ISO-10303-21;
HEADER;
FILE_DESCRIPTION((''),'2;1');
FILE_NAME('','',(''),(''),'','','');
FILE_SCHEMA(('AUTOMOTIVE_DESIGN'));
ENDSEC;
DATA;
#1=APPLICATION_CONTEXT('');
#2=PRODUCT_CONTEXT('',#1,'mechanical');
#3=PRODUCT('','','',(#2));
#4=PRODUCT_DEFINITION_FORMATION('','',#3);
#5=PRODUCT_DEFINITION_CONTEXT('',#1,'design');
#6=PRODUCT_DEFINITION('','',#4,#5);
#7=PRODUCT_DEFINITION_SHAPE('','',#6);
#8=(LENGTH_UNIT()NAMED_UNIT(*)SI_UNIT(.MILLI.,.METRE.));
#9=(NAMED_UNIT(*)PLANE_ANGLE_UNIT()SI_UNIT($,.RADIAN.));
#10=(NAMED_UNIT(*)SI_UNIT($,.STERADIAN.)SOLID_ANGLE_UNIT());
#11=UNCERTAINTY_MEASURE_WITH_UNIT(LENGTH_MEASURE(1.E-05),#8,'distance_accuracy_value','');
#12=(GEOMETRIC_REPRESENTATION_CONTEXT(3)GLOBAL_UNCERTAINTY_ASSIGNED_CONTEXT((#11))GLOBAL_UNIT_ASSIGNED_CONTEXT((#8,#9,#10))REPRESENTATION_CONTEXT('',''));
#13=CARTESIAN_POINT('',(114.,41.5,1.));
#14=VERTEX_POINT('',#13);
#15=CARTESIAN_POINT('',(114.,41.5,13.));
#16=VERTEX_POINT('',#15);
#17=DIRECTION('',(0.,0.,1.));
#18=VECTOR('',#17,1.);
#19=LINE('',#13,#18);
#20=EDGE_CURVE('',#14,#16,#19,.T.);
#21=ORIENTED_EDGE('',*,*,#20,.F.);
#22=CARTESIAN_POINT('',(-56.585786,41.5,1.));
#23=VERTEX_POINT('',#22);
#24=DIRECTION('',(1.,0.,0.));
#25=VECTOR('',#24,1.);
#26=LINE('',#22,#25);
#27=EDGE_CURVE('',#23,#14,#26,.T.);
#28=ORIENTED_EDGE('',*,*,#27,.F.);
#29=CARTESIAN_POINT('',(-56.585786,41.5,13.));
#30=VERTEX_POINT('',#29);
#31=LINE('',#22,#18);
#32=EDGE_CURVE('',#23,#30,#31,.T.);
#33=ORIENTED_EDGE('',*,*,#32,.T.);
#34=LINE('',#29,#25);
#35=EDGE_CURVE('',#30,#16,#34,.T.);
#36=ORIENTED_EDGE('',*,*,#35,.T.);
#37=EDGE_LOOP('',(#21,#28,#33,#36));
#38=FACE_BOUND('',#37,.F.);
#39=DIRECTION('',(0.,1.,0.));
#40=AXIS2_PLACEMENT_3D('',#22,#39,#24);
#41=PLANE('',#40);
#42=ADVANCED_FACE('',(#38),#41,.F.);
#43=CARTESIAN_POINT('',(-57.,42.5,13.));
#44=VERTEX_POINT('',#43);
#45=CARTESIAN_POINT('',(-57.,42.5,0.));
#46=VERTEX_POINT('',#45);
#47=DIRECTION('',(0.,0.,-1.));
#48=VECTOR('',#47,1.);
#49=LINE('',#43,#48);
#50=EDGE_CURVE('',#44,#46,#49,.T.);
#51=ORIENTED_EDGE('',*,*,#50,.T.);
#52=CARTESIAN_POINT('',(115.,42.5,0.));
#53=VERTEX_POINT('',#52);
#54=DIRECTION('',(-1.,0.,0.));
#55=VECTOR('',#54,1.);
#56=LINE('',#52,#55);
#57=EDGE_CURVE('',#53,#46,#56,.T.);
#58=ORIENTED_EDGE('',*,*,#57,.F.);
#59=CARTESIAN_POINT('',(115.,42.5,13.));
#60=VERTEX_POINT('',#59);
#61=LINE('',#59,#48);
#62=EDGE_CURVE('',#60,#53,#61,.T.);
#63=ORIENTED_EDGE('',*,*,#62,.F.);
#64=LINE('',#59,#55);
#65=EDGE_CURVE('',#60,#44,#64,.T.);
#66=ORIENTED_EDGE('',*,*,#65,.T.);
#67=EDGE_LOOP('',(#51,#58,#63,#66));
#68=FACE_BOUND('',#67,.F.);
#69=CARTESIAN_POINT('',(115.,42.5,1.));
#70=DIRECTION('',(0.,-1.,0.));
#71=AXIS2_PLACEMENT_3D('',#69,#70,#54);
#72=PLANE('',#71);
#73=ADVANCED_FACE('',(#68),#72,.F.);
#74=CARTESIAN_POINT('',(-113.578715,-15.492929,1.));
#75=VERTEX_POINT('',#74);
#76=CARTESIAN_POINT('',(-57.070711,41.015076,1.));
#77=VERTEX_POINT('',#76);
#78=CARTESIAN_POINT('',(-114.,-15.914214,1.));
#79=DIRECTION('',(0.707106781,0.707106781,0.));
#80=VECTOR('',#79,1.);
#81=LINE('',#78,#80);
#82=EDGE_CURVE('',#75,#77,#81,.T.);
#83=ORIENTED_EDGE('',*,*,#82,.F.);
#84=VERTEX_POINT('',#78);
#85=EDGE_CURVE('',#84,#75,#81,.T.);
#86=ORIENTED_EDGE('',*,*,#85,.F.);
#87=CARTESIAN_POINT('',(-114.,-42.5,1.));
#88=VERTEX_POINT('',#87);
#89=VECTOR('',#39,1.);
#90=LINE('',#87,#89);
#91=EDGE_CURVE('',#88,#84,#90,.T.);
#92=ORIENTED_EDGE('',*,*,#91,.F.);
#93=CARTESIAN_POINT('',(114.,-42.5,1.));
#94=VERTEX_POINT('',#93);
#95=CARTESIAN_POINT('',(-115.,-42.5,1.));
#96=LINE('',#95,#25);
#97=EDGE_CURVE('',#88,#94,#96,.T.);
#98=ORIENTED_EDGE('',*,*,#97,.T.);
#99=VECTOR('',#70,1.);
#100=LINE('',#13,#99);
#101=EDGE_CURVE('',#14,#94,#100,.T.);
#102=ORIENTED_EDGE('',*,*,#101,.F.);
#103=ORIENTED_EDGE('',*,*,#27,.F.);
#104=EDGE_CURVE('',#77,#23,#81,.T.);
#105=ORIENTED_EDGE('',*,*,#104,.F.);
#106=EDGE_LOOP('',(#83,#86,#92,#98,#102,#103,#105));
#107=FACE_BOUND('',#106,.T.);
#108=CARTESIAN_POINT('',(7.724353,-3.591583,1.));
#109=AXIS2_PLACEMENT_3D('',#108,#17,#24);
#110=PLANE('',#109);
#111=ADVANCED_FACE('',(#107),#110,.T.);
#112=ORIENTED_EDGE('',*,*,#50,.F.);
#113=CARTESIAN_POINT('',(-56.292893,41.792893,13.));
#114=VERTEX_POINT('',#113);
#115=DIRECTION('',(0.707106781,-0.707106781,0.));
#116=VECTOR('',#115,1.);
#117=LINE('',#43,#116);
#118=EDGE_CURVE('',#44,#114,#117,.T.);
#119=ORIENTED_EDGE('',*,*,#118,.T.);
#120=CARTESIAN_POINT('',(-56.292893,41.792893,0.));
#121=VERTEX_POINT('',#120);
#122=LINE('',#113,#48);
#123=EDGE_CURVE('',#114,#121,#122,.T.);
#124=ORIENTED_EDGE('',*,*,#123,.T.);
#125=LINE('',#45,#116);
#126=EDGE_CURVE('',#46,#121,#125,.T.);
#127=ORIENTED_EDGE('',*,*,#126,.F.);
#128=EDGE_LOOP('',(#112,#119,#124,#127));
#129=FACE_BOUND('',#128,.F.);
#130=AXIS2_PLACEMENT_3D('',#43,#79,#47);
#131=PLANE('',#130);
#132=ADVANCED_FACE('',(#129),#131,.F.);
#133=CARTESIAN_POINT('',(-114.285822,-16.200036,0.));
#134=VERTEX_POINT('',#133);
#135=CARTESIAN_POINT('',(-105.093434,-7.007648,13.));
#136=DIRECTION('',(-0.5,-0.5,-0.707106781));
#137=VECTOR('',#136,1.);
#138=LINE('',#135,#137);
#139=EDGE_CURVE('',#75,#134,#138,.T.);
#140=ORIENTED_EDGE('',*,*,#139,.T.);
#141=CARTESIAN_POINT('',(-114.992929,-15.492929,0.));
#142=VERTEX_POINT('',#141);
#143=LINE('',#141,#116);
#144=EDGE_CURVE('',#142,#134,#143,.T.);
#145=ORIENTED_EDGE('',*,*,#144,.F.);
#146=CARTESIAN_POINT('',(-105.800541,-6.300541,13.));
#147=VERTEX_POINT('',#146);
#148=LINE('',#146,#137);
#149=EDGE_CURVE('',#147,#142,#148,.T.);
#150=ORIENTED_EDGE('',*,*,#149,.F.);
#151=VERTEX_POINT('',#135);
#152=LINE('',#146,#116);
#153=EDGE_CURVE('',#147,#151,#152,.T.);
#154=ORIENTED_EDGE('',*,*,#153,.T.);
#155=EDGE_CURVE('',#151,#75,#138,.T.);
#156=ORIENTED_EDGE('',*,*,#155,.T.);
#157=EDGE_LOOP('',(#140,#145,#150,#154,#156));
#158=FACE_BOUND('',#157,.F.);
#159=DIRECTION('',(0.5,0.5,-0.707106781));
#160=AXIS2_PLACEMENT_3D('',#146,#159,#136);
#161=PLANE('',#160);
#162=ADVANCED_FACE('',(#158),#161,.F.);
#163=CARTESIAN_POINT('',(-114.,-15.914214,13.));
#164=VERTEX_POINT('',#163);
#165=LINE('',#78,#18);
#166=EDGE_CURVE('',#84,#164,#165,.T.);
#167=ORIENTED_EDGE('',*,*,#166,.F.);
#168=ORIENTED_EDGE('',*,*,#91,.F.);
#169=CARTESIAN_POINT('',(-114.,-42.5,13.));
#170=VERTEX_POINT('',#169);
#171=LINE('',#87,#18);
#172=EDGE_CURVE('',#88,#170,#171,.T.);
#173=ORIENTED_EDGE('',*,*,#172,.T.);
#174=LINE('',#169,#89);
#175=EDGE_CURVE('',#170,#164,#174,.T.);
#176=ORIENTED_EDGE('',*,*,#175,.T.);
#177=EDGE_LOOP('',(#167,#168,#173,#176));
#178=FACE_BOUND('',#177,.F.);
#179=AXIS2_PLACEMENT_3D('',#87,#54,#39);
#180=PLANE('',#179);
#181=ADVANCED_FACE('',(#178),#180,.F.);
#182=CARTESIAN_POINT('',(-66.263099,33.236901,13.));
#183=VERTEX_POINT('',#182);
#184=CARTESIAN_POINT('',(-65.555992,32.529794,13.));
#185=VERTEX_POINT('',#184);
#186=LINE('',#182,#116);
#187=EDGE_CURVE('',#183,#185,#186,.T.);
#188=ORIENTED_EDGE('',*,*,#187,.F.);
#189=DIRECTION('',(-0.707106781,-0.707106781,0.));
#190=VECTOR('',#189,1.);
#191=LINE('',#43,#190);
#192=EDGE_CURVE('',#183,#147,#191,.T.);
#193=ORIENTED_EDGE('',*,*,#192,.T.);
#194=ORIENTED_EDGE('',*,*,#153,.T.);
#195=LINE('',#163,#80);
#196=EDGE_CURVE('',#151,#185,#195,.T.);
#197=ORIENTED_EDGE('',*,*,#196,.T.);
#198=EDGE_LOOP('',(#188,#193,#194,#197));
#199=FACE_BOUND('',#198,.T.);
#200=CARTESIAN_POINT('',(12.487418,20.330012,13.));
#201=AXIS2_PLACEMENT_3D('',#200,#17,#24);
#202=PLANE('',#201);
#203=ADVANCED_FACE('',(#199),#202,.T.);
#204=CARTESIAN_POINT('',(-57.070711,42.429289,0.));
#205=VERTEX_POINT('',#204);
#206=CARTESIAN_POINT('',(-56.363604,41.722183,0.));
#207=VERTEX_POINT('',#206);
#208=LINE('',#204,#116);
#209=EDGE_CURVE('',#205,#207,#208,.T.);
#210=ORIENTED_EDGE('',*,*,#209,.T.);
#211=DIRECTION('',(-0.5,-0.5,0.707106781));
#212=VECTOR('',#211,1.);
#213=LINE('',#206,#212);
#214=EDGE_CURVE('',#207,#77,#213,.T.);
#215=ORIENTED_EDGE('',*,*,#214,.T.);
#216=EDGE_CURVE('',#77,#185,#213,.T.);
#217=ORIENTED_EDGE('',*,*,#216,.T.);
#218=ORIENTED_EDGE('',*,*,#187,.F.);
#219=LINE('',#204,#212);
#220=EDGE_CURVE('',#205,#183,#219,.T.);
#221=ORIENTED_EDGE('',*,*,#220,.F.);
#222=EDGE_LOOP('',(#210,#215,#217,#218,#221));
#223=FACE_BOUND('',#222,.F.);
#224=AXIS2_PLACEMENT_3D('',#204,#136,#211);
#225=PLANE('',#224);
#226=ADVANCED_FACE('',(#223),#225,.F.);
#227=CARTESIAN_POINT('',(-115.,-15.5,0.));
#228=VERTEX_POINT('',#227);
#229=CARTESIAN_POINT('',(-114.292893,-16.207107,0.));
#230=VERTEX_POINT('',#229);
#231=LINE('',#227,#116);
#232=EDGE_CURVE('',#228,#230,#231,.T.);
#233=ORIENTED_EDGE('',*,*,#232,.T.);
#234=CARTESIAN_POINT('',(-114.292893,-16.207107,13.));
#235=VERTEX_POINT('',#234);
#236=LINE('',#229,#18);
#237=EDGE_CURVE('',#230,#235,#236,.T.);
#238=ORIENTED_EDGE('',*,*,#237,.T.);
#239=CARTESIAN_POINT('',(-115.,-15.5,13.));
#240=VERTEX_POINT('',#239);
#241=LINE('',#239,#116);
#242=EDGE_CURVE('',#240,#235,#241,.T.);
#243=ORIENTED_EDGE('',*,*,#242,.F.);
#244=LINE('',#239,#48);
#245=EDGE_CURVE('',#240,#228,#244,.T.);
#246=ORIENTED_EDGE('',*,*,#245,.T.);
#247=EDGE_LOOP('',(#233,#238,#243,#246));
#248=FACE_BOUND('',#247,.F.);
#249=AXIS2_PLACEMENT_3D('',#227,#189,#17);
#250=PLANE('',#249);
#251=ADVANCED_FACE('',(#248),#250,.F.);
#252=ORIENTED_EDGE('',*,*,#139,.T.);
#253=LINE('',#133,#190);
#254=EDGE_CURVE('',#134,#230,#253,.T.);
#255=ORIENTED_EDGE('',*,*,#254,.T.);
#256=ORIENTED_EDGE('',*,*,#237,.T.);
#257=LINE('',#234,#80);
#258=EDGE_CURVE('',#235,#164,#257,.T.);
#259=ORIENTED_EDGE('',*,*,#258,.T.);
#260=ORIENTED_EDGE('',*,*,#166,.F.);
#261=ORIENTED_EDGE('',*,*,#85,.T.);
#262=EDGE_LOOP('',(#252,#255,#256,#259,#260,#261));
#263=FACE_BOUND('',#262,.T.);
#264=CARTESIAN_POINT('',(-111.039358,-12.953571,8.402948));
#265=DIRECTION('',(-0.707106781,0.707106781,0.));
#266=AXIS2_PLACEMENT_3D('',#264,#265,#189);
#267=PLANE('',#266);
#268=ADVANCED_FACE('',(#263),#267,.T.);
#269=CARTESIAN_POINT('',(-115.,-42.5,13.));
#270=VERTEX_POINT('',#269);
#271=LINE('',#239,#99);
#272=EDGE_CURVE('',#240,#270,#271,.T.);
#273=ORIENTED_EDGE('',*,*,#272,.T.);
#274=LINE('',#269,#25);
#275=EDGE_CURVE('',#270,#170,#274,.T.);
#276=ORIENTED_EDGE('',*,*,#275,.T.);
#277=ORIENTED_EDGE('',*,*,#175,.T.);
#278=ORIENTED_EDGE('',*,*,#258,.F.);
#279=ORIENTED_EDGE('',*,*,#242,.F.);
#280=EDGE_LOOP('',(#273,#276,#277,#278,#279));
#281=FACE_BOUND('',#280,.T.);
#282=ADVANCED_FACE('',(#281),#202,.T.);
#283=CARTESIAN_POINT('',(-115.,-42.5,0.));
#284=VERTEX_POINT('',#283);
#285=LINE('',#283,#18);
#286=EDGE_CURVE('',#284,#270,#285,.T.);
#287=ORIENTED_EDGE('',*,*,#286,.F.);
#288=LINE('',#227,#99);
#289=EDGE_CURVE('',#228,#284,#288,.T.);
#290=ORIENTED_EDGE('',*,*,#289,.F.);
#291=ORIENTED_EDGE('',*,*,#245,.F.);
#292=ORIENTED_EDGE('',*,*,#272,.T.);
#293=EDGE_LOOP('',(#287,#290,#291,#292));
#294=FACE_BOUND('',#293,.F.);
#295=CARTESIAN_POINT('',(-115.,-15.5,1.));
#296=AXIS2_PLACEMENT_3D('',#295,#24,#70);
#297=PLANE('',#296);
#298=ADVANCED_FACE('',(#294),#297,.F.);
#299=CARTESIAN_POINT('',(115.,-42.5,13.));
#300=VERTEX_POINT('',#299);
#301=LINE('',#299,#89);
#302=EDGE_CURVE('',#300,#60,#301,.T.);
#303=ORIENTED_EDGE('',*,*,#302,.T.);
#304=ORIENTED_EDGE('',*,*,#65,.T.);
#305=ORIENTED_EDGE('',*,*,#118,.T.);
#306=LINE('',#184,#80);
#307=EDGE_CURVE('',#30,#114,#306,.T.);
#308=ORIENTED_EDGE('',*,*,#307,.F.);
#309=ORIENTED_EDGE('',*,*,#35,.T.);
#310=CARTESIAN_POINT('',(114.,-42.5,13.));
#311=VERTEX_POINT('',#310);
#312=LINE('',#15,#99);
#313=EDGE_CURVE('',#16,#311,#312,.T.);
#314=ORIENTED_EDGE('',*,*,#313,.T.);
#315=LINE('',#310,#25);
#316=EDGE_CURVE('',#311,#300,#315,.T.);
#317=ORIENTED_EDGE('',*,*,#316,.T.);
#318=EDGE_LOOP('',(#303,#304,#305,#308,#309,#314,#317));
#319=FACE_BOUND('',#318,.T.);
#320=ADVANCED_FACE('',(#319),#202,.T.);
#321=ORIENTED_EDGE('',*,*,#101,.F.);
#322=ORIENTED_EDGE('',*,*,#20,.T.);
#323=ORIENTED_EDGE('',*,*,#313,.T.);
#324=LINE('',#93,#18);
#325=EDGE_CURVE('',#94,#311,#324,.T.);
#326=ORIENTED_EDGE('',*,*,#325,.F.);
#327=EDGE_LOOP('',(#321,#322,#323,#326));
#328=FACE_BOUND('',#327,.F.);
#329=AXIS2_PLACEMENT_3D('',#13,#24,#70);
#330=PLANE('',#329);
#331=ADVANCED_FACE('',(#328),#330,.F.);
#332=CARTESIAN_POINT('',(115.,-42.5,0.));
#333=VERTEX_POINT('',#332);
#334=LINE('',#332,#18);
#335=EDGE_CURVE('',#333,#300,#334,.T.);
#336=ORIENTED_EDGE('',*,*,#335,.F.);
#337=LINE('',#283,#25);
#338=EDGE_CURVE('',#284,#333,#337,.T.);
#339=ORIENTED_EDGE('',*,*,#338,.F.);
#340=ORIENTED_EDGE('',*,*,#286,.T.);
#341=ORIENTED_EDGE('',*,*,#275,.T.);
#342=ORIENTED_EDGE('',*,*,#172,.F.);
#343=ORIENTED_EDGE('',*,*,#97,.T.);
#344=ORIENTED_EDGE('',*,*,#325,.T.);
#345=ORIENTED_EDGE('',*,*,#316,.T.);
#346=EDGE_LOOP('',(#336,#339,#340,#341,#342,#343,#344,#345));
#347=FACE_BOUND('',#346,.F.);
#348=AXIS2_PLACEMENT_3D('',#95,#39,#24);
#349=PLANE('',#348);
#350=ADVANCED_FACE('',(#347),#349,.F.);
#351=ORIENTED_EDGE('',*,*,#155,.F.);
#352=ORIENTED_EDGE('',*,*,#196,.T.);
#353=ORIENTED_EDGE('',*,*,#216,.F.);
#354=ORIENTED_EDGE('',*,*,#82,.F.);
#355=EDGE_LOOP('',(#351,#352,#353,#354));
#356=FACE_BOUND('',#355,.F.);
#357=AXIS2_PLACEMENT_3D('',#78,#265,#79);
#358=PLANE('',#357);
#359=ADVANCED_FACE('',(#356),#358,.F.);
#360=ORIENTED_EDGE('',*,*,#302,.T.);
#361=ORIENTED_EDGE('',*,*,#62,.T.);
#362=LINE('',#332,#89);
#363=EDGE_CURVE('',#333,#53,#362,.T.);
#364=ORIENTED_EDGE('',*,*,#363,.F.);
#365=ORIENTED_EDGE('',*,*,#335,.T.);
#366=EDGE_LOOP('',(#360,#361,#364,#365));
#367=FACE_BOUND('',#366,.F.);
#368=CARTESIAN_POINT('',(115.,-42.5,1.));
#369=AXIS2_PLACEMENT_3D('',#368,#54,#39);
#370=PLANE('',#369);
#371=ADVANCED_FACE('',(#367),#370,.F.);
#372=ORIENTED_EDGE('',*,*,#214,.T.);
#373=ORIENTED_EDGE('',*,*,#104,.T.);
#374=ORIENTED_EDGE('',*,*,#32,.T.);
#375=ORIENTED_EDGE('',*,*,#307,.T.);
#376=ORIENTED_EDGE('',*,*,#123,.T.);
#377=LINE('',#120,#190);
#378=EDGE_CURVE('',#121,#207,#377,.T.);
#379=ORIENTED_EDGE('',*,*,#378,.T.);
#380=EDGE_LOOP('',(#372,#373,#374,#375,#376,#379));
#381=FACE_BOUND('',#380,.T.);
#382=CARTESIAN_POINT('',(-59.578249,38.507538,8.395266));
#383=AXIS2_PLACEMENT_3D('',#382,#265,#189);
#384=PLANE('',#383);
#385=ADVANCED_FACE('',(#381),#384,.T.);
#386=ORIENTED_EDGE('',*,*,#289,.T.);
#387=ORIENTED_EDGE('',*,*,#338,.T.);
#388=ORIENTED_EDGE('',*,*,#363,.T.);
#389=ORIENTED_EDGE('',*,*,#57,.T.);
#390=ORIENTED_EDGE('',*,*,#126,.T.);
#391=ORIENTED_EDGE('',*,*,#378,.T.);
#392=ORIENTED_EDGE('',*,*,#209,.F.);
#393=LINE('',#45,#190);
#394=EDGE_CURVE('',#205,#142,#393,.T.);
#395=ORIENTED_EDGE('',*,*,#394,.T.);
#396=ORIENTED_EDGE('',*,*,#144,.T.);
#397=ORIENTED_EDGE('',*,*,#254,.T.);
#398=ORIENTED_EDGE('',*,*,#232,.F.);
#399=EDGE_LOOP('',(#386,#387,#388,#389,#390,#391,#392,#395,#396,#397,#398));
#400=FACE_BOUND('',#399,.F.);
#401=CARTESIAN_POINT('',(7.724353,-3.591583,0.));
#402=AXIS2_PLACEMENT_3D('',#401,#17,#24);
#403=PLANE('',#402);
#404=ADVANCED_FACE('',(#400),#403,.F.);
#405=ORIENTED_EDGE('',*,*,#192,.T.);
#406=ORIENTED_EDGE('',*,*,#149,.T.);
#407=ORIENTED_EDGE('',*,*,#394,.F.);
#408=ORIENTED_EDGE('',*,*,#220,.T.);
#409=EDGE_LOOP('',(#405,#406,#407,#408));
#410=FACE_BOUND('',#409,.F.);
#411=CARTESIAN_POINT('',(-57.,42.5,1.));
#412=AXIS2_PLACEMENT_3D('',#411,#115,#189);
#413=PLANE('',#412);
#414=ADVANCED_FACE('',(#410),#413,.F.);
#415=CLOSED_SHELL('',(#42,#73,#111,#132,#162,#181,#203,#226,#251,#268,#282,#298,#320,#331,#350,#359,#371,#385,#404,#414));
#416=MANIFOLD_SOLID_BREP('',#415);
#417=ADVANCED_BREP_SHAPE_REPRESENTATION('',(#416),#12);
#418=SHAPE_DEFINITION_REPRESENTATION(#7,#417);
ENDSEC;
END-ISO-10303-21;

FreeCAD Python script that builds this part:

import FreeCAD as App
import Part
import Sketcher
Q = App.Units.Quantity

doc = App.newDocument("Part")
body = doc.addObject("PartDesign::Body", "Body")

sketch1 = body.newObject("Sketcher::SketchObject", "Sketch")
sketch1.AttachmentSupport = (doc.getObject("XY_Plane"), [""])
sketch1.MapMode = "FlatFace"
sketch1.addGeometry([
    Part.LineSegment(App.Vector(-115, -42, 0), App.Vector(115, -42, 0)),
    Part.LineSegment(App.Vector(115, -42, 0), App.Vector(115, 42, 0)),
    Part.LineSegment(App.Vector(115, 42, 0), App.Vector(-57, 42, 0)),
    Part.LineSegment(App.Vector(-57, 42, 0), App.Vector(-115, -16, 0)),
    Part.LineSegment(App.Vector(-115, -16, 0), App.Vector(-115, -42, 0)),
], False)
sketch1.addConstraint([
    Sketcher.Constraint("Coincident", 0, 2, 1, 1),
    Sketcher.Constraint("Coincident", 1, 2, 2, 1),
    Sketcher.Constraint("Coincident", 2, 2, 3, 1),
    Sketcher.Constraint("Coincident", 3, 2, 4, 1),
    Sketcher.Constraint("Coincident", 4, 2, 0, 1),
    Sketcher.Constraint("Horizontal", 0),
    Sketcher.Constraint("Vertical", 1),
    Sketcher.Constraint("Horizontal", 2),
    Sketcher.Constraint("Vertical", 4),
    Sketcher.Constraint("Symmetric", 1, 2, 4, 2, -1, 1),
    Sketcher.Constraint("DistanceX", 0, 1, 0, 2, 230.0),
    Sketcher.Constraint("DistanceX", 2, 2, 2, 1, 172.0),
    Sketcher.Constraint("DistanceY", 1, 1, 1, 2, 85.0),
    Sketcher.Constraint("DistanceY", 4, 2, 4, 1, 27.0),
])
pad1 = body.newObject("PartDesign::Pad", "Pad")
pad1.Profile = sketch1
pad1.Length = 1

sketch2 = body.newObject("Sketcher::SketchObject", "Sketch001")
sketch2.AttachmentSupport = (doc.getObject("XY_Plane"), [""])
sketch2.MapMode = "FlatFace"
sketch2.AttachmentOffset = App.Placement(App.Vector(0, 0, 1), App.Rotation())
sketch2.addGeometry([
    Part.LineSegment(App.Vector(-115, -15.5, 0), App.Vector(-115, -42.5, 0)),
    Part.LineSegment(App.Vector(-115, -42.5, 0), App.Vector(-114, -42.5, 0)),
    Part.LineSegment(App.Vector(-114, -42.5, 0), App.Vector(-114, -15.9, 0)),
    Part.LineSegment(App.Vector(-114, -15.9, 0), App.Vector(-56.6, 41.5, 0)),
    Part.LineSegment(App.Vector(-56.6, 41.5, 0), App.Vector(114, 41.5, 0)),
    Part.LineSegment(App.Vector(114, 41.5, 0), App.Vector(114, -42.5, 0)),
    Part.LineSegment(App.Vector(114, -42.5, 0), App.Vector(115, -42.5, 0)),
    Part.LineSegment(App.Vector(115, -42.5, 0), App.Vector(115, 42.5, 0)),
    Part.LineSegment(App.Vector(115, 42.5, 0), App.Vector(-57, 42.5, 0)),
    Part.LineSegment(App.Vector(-57, 42.5, 0), App.Vector(-115, -15.5, 0)),
], False)
sketch2.addConstraint([
    Sketcher.Constraint("Coincident", 0, 2, 1, 1),
    Sketcher.Constraint("Coincident", 1, 2, 2, 1),
    Sketcher.Constraint("Coincident", 2, 2, 3, 1),
    Sketcher.Constraint("Coincident", 3, 2, 4, 1),
    Sketcher.Constraint("Coincident", 4, 2, 5, 1),
    Sketcher.Constraint("Coincident", 5, 2, 6, 1),
    Sketcher.Constraint("Coincident", 6, 2, 7, 1),
    Sketcher.Constraint("Coincident", 7, 2, 8, 1),
    Sketcher.Constraint("Coincident", 8, 2, 9, 1),
    Sketcher.Constraint("Coincident", 9, 2, 0, 1),
    Sketcher.Constraint("Vertical", 0),
    Sketcher.Constraint("Horizontal", 1),
    Sketcher.Constraint("Vertical", 2),
    Sketcher.Constraint("Horizontal", 4),
    Sketcher.Constraint("Vertical", 5),
    Sketcher.Constraint("Horizontal", 6),
    Sketcher.Constraint("Vertical", 7),
    Sketcher.Constraint("Horizontal", 8),
    Sketcher.Constraint("Symmetric", 0, 2, 7, 2, -1, 1),
    Sketcher.Constraint("Symmetric", 1, 2, 5, 2, -2),
    Sketcher.Constraint("Parallel", 3, 9),
    Sketcher.Constraint("DistanceX", 1, 1, 1, 2, 1.0),
    Sketcher.Constraint("DistanceX", 8, 2, 8, 1, 172.0),
    Sketcher.Constraint("DistanceY", 0, 2, 0, 1, 27.0),
    Sketcher.Constraint("DistanceY", 5, 2, 5, 1, 84.0),
    Sketcher.Constraint("DistanceY", 7, 1, 7, 2, 85.0),
    Sketcher.Constraint("Angle", 3, Q("45 deg")),
    Sketcher.Constraint("Distance", 3, 81.195959),
])
pad2 = body.newObject("PartDesign::Pad", "Pad001")
pad2.Profile = sketch2
pad2.Length = 12

sketch3 = body.newObject("Sketcher::SketchObject", "Sketch002")
sketch3.Placement = App.Placement(App.Vector(-49.75, 49.75, 0), App.Rotation(App.Vector(-0.707106781, -0.707106781, 0), App.Vector(0, 0, 0.999999999), App.Vector(-0.707106781, 0.707106781, 0), "ZXY"))
sketch3.addGeometry([
    Part.LineSegment(App.Vector(92.267, 0, 0), App.Vector(92.277, 0, 0)),
    Part.LineSegment(App.Vector(92.277, 0, 0), App.Vector(92.277, 13, 0)),
    Part.LineSegment(App.Vector(92.277, 13, 0), App.Vector(79.267, 13, 0)),
    Part.LineSegment(App.Vector(79.267, 13, 0), App.Vector(92.267, 0, 0)),
    Part.LineSegment(App.Vector(23.353, 13, 0), App.Vector(10.253, 13, 0)),
    Part.LineSegment(App.Vector(10.253, 13, 0), App.Vector(10.253, 0, 0)),
    Part.LineSegment(App.Vector(10.253, 0, 0), App.Vector(10.353, 0, 0)),
    Part.LineSegment(App.Vector(10.353, 0, 0), App.Vector(23.353, 13, 0)),
], False)
sketch3.addConstraint([
    Sketcher.Constraint("Coincident", 0, 2, 1, 1),
    Sketcher.Constraint("Coincident", 1, 2, 2, 1),
    Sketcher.Constraint("Coincident", 2, 2, 3, 1),
    Sketcher.Constraint("Coincident", 3, 2, 0, 1),
    Sketcher.Constraint("Coincident", 4, 2, 5, 1),
    Sketcher.Constraint("Coincident", 5, 2, 6, 1),
    Sketcher.Constraint("Coincident", 6, 2, 7, 1),
    Sketcher.Constraint("Coincident", 7, 2, 4, 1),
    Sketcher.Constraint("Horizontal", 0),
    Sketcher.Constraint("Vertical", 1),
    Sketcher.Constraint("Horizontal", 2),
    Sketcher.Constraint("Horizontal", 4),
    Sketcher.Constraint("Vertical", 5),
    Sketcher.Constraint("Horizontal", 6),
    Sketcher.Constraint("PointOnObject", 0, 2, -1),
    Sketcher.Constraint("PointOnObject", 5, 2, -1),
    Sketcher.Constraint("Perpendicular", 3, 7),
    Sketcher.Constraint("Horizontal", 2, 2, 4, 2),
    Sketcher.Constraint("Equal", 3, 7),
    Sketcher.Constraint("DistanceY", 1, 1, 1, 2, 13.0),
    Sketcher.Constraint("DistanceX", 4, 2, 4, 1, 13.1),
    Sketcher.Constraint("DistanceX", 0, 1, 0, 2, 0.01),
    Sketcher.Constraint("DistanceX", -1, 1, 4, 2, 10.253048),
    Sketcher.Constraint("DistanceX", -1, 1, 0, 2, 92.277435),
])
pocket1 = body.newObject("PartDesign::Pocket", "Pocket")
pocket1.Profile = sketch3
pocket1.Length = 1

doc.recompute()
